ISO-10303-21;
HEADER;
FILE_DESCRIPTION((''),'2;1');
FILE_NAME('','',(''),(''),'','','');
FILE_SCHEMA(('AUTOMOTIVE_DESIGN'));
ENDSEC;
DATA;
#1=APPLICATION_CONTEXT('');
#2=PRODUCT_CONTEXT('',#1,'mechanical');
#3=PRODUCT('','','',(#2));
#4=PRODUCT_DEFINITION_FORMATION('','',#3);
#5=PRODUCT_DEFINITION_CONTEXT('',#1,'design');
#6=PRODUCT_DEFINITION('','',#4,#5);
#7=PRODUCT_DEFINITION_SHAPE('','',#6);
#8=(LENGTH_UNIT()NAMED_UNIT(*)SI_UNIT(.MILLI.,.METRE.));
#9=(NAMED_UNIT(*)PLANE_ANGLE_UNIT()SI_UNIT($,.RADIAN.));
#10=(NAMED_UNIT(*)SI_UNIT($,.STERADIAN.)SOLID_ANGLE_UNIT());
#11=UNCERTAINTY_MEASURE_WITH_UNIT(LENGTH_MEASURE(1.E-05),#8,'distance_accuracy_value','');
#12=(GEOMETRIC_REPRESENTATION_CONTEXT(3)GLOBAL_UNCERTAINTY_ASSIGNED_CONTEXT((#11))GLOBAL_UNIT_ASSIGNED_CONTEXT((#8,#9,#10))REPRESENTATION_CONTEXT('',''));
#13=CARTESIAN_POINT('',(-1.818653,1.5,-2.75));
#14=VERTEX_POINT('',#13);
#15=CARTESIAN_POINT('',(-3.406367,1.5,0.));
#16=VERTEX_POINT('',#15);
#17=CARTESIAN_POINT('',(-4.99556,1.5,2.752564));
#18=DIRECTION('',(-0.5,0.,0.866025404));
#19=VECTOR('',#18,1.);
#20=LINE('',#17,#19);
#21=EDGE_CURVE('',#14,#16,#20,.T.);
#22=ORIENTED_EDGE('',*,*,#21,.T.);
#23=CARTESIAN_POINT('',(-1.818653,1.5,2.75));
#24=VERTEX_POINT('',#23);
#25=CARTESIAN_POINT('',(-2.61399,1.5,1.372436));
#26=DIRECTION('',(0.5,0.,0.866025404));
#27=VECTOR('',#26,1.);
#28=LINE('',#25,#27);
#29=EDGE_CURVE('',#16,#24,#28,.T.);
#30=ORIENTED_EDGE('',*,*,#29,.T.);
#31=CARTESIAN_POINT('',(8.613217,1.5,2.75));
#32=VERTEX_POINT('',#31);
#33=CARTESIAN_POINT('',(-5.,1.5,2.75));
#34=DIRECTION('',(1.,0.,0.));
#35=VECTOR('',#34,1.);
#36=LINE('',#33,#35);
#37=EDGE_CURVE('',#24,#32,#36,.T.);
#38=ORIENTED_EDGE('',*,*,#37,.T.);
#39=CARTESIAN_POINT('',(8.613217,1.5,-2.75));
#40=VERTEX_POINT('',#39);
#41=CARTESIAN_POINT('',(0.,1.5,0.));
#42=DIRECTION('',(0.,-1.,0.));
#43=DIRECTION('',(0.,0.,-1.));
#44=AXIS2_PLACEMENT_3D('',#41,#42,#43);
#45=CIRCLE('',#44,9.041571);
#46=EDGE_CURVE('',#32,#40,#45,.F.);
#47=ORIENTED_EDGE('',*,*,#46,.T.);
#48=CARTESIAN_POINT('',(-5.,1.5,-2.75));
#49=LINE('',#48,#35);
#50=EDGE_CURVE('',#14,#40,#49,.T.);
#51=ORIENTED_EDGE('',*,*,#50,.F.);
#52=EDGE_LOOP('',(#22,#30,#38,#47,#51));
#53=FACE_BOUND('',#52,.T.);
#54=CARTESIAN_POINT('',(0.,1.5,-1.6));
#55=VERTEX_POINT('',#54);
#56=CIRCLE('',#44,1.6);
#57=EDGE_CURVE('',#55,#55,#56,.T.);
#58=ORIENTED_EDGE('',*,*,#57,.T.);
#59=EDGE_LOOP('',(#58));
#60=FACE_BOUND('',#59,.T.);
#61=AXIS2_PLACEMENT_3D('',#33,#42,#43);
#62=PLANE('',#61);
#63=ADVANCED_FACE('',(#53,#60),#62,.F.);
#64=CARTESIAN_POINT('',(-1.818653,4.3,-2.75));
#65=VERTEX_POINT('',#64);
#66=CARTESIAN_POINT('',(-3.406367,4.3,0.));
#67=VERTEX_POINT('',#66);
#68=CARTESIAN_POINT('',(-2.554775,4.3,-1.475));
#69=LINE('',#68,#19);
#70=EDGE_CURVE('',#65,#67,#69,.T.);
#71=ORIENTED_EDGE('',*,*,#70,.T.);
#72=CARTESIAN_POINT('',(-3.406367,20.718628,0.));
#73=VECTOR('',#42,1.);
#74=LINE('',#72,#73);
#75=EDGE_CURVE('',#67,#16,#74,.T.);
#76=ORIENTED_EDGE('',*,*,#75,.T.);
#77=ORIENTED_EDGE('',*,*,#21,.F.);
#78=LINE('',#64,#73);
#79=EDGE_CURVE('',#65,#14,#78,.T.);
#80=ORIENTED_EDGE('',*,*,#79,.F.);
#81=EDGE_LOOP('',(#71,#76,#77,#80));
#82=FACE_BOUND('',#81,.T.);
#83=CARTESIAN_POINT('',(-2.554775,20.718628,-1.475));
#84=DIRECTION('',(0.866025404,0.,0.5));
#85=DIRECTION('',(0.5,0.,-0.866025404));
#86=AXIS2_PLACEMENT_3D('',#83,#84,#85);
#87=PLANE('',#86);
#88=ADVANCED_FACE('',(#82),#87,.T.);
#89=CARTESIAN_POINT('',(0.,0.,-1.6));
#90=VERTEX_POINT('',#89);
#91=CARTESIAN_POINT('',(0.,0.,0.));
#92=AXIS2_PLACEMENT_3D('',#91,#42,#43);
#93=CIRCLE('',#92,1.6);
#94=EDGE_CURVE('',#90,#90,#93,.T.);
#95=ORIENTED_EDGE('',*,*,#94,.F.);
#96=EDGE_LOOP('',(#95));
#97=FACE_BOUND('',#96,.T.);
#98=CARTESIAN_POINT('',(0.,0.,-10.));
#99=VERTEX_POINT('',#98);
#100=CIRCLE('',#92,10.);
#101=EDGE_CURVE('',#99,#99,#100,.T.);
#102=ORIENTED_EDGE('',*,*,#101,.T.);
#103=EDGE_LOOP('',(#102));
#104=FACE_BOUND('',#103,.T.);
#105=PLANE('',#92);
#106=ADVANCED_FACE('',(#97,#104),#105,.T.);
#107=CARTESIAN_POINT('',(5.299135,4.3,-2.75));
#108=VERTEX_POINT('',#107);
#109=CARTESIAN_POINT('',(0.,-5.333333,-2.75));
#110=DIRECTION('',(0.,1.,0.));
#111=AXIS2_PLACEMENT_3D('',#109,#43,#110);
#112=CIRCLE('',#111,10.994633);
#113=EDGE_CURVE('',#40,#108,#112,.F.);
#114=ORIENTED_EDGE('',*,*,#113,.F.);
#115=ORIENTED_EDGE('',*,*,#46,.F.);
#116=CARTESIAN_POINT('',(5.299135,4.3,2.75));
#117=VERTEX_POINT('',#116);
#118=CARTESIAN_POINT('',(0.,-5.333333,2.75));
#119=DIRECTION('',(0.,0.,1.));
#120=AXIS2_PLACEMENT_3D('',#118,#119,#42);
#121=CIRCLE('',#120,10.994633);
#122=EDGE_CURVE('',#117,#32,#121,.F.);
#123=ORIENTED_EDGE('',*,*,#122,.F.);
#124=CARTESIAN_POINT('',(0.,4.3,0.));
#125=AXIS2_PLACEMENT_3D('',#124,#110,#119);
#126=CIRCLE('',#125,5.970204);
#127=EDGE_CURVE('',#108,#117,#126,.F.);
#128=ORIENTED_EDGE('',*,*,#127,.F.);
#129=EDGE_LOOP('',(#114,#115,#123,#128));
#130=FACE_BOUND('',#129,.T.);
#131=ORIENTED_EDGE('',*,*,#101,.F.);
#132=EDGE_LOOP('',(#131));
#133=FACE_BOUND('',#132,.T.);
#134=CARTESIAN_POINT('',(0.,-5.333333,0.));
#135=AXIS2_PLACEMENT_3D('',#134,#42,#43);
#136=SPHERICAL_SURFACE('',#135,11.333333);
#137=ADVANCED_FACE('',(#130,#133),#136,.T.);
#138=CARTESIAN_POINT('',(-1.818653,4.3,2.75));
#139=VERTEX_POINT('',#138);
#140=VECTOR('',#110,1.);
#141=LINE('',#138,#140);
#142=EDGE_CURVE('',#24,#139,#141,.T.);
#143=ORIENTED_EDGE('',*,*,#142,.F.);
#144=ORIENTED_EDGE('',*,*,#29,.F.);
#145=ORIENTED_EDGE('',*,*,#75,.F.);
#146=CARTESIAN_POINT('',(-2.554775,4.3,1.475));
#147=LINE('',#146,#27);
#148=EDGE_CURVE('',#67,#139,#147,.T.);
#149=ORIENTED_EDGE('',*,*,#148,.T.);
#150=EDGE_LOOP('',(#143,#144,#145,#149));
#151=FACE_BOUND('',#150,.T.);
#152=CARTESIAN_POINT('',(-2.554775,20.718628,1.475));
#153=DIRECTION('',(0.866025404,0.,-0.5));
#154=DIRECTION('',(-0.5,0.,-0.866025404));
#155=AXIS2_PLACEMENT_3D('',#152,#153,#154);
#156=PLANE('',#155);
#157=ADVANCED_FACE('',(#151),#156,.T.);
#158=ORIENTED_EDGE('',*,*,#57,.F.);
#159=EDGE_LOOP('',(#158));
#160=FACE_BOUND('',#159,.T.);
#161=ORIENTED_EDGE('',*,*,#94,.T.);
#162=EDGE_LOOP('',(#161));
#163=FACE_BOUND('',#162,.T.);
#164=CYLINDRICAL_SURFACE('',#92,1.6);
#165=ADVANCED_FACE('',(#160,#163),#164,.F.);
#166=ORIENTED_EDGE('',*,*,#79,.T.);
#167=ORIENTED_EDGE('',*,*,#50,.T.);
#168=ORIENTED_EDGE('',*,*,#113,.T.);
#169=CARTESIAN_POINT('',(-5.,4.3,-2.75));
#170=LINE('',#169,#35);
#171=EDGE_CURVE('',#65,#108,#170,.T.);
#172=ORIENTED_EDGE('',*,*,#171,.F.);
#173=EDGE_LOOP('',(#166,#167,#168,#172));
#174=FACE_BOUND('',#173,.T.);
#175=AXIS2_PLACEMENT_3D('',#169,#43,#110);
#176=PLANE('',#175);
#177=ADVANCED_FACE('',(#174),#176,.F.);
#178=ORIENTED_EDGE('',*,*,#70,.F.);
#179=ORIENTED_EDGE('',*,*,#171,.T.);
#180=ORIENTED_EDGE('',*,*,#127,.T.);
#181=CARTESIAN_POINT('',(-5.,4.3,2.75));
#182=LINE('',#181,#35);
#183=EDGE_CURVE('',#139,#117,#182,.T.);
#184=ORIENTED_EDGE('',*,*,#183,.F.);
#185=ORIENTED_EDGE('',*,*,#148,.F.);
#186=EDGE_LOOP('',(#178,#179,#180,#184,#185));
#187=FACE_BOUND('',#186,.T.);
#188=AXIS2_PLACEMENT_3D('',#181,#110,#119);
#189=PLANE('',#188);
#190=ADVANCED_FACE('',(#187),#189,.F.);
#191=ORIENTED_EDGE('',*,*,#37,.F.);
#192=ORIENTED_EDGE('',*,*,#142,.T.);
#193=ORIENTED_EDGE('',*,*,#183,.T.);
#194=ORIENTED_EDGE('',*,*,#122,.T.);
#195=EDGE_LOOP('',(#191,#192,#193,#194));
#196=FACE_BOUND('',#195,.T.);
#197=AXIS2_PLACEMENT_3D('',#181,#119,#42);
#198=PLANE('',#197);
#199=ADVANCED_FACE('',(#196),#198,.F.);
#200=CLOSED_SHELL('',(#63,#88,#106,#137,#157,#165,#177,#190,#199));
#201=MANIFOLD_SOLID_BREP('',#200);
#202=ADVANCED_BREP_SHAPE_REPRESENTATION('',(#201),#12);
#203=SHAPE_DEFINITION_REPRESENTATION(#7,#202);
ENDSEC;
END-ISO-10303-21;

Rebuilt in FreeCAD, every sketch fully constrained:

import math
import FreeCAD as App
import Part
import Sketcher

V = App.Vector
Q = App.Units.Quantity


def add_polygon(sketch, points):
    """Adds a closed chain of lines whose ends are joined by coincident constraints."""
    first, n = sketch.GeometryCount, len(points)
    for a, b in zip(points, points[1:] + points[:1]):
        sketch.addGeometry(Part.LineSegment(App.Vector(*a, 0), App.Vector(*b, 0)), False)
    for i in range(n):
        sketch.addConstraint(Sketcher.Constraint("Coincident", first + i, 2, first + (i + 1) % n, 1))

doc = App.newDocument("Part")
body = doc.addObject("PartDesign::Body", "Body")

sketch1 = body.newObject("Sketcher::SketchObject", "Sketch")
sketch1.AttachmentSupport = (doc.getObject("YZ_Plane"), [""])
sketch1.MapMode = "FlatFace"
sketch1.addGeometry([
    Part.LineSegment(V(6, 0, 0), V(0, 0, 0)),
    Part.LineSegment(V(0, 0, 0), V(0, -10, 0)),
    Part.ArcOfCircle(Part.Circle(V(-5, 0, 0), V(0, 0, 1), 11), math.radians(-62), math.radians(0)),
], False)
sketch1.addConstraint([
    Sketcher.Constraint("Coincident", 0, 2, 1, 1),
    Sketcher.Constraint("Coincident", 1, 2, 2, 1),
    Sketcher.Constraint("Coincident", 2, 2, 0, 1),
    Sketcher.Constraint("Horizontal", 0),
    Sketcher.Constraint("Vertical", 1),
    Sketcher.Constraint("Coincident", 0, 2, -1, 1),
    Sketcher.Constraint("PointOnObject", 2, 3, -1),
    Sketcher.Constraint("DistanceX", 0, 2, 0, 1, 6.0),
    Sketcher.Constraint("DistanceY", 1, 2, 1, 1, 10.0),
])
revolution = body.newObject("PartDesign::Revolution", "Revolution")
revolution.Profile = sketch1
revolution.ReferenceAxis = (sketch1, ["H_Axis"])
revolution.Angle = 360

sketch2 = body.newObject("Sketcher::SketchObject", "Sketch001")
sketch2.AttachmentSupport = (doc.getObject("YZ_Plane"), [""])
sketch2.MapMode = "FlatFace"
add_polygon(sketch2, [(4.3, 2.8), (1.5, 2.8), (1.5, -2.8), (4.3, -2.8)])
sketch2.addConstraint([
    Sketcher.Constraint("Horizontal", 0),
    Sketcher.Constraint("Vertical", 1),
    Sketcher.Constraint("Horizontal", 2),
    Sketcher.Constraint("Vertical", 3),
    Sketcher.Constraint("DistanceX", 0, 2, 0, 1, 2.8),
    Sketcher.Constraint("DistanceY", 1, 2, 1, 1, 5.5),
    Sketcher.Constraint("DistanceX", -1, 1, 0, 2, 1.5),
    Sketcher.Constraint("DistanceY", -1, 1, 0, 2, 2.75),
])
pocket1 = body.newObject("PartDesign::Pocket", "Pocket")
pocket1.Profile = sketch2
pocket1.Type = "TwoLengths"
pocket1.Length = 16.362291
pocket1.Length2 = 5
pocket1.Reversed = True

sketch3 = body.newObject("Sketcher::SketchObject", "Sketch002")
sketch3.AttachmentSupport = (doc.getObject("XZ_Plane"), [""])
sketch3.MapMode = "FlatFace"
sketch3.addGeometry(Part.Circle(V(0, 0, 0), V(0, 0, 1), 1.6), False)
sketch3.addConstraint([
    Sketcher.Constraint("Coincident", 0, 3, -1, 1),
    Sketcher.Constraint("Diameter", 0, 3.2),
])
doc.recompute()
hole = body.newObject("PartDesign::Hole", "Hole")
hole.Profile = sketch3
hole.ThreadType = "None"
hole.Diameter = 3.2
hole.DepthType = "Dimension"
hole.Depth = 1.5
hole.DrillPoint = "Flat"

sketch4 = body.newObject("Sketcher::SketchObject", "Sketch003")
sketch4.AttachmentSupport = (doc.getObject("XZ_Plane"), [""])
sketch4.MapMode = "FlatFace"
sketch4.addGeometry([
    Part.LineSegment(V(-1.7, -3, 0), V(5.3, -2.8, 0)),
    Part.ArcOfCircle(Part.Circle(V(0, 0, 0), V(0, 0, 1), 6), math.radians(27), math.radians(333)),
    Part.LineSegment(V(5.3, 2.8, 0), V(-1.7, 3, 0)),
    Part.LineSegment(V(-1.7, 3, 0), V(-3.4, 0, 0)),
    Part.LineSegment(V(-3.4, 0, 0), V(-1.7, -3, 0)),
], False)
sketch4.addConstraint([
    Sketcher.Constraint("Coincident", 0, 2, 1, 2),
    Sketcher.Constraint("Coincident", 1, 1, 2, 1),
    Sketcher.Constraint("Coincident", 2, 2, 3, 1),
    Sketcher.Constraint("Coincident", 3, 2, 4, 1),
    Sketcher.Constraint("Coincident", 4, 2, 0, 1),
    Sketcher.Constraint("Coincident", 1, 3, -1, 1),
    Sketcher.Constraint("Symmetric", 2, 2, 4, 2, -1),
    Sketcher.Constraint("PointOnObject", 3, 2, -1),
    Sketcher.Constraint("Vertical", 0, 2, 1, 1),
    Sketcher.Constraint("Angle", 3, Q("-120 deg")),
    Sketcher.Constraint("DistanceY", 0, 2, 1, 1, 5.5),
    Sketcher.Constraint("DistanceY", 1, 1, 2, 2, 0.2),
    Sketcher.Constraint("Radius", 1, 5.970204),
    Sketcher.Constraint("DistanceX", 3, 2, 1, 1, 8.705502),
])
pad1 = body.newObject("PartDesign::Pad", "Pad")
pad1.Profile = sketch4
pad1.Length = 4.3
pad1.Reversed = True

doc.recompute()
